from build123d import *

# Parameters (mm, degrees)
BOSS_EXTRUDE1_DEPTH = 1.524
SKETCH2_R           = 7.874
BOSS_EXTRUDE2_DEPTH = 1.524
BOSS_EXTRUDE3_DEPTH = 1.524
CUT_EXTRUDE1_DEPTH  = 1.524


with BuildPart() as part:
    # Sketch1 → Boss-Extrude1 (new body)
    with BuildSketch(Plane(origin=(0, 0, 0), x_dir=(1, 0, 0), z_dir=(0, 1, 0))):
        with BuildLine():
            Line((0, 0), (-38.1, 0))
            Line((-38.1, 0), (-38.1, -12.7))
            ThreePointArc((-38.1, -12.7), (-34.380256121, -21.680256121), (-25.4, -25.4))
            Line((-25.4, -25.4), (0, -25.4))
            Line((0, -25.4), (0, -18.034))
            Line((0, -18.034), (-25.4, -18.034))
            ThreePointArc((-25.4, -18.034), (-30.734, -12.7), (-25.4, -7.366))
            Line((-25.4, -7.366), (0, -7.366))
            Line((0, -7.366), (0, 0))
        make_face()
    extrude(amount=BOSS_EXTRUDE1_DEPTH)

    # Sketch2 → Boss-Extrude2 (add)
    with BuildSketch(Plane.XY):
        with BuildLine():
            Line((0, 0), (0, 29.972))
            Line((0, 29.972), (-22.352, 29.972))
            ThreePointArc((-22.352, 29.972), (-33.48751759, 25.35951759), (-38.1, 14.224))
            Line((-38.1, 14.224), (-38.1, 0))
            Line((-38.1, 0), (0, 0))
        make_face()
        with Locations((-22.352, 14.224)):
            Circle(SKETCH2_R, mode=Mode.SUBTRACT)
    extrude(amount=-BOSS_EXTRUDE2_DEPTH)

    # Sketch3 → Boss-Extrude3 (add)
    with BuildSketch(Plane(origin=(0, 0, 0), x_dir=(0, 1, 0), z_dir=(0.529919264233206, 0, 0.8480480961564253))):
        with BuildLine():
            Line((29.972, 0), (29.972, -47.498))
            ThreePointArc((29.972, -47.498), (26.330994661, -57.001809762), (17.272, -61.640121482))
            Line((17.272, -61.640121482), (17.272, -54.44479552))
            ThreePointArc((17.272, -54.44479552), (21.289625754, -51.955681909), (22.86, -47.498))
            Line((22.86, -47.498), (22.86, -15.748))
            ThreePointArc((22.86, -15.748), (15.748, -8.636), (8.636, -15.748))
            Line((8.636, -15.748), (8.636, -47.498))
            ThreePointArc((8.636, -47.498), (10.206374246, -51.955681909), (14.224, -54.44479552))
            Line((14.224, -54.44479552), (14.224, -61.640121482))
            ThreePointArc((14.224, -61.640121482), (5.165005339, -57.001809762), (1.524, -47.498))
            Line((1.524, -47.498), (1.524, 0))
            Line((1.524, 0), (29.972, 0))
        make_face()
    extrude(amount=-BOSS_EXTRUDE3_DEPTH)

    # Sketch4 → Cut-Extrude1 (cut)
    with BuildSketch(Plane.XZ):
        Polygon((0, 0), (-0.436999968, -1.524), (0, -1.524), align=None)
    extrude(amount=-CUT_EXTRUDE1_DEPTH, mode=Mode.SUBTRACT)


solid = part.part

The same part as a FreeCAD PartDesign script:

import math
import FreeCAD as App
import Part
import Sketcher
Q = App.Units.Quantity


def add_polygon(sketch, points):
    """Adds a closed chain of lines whose ends are joined by coincident constraints."""
    first, n = sketch.GeometryCount, len(points)
    for a, b in zip(points, points[1:] + points[:1]):
        sketch.addGeometry(Part.LineSegment(App.Vector(*a, 0), App.Vector(*b, 0)), False)
    for i in range(n):
        sketch.addConstraint(Sketcher.Constraint("Coincident", first + i, 2, first + (i + 1) % n, 1))

doc = App.newDocument("Part")
body = doc.addObject("PartDesign::Body", "Body")

# Sketch on XZ plane
sketch1 = body.newObject("Sketcher::SketchObject", "Sketch")
sketch1.AttachmentSupport = (doc.getObject("XZ_Plane"), [""])
sketch1.MapMode = "FlatFace"
sketch1.addGeometry(Part.LineSegment(App.Vector(0, 0, 0), App.Vector(-38, 0, 0)), False)
sketch1.addGeometry(Part.LineSegment(App.Vector(-38, 0, 0), App.Vector(-38, 13, 0)), False)
sketch1.addGeometry(Part.ArcOfCircle(Part.Circle(App.Vector(-25, 13, 0), App.Vector(0, 0, 1), 13), math.radians(90), math.radians(180)), False)
sketch1.addGeometry(Part.LineSegment(App.Vector(-25, 25, 0), App.Vector(0, 25, 0)), False)
sketch1.addGeometry(Part.LineSegment(App.Vector(0, 25, 0), App.Vector(0, 18, 0)), False)
sketch1.addGeometry(Part.LineSegment(App.Vector(0, 18, 0), App.Vector(-25, 18, 0)), False)
sketch1.addGeometry(Part.ArcOfCircle(Part.Circle(App.Vector(-25, 13, 0), App.Vector(0, 0, 1), 5), math.radians(90), math.radians(270)), False)
sketch1.addGeometry(Part.LineSegment(App.Vector(-25, 7, 0), App.Vector(0, 7, 0)), False)
sketch1.addGeometry(Part.LineSegment(App.Vector(0, 7, 0), App.Vector(0, 0, 0)), False)
sketch1.addConstraint(Sketcher.Constraint("Coincident", 0, 2, 1, 1))
sketch1.addConstraint(Sketcher.Constraint("Tangent", 1, 2, 2, 2))
sketch1.addConstraint(Sketcher.Constraint("Tangent", 2, 1, 3, 1))
sketch1.addConstraint(Sketcher.Constraint("Coincident", 3, 2, 4, 1))
sketch1.addConstraint(Sketcher.Constraint("Coincident", 4, 2, 5, 1))
sketch1.addConstraint(Sketcher.Constraint("Tangent", 5, 2, 6, 1))
sketch1.addConstraint(Sketcher.Constraint("Tangent", 6, 2, 7, 1))
sketch1.addConstraint(Sketcher.Constraint("Coincident", 7, 2, 8, 1))
sketch1.addConstraint(Sketcher.Constraint("Coincident", 8, 2, 0, 1))
sketch1.addConstraint(Sketcher.Constraint("Horizontal", 0))
sketch1.addConstraint(Sketcher.Constraint("Vertical", 1))
sketch1.addConstraint(Sketcher.Constraint("Horizontal", 3))
sketch1.addConstraint(Sketcher.Constraint("Vertical", 4))
sketch1.addConstraint(Sketcher.Constraint("Horizontal", 5))
sketch1.addConstraint(Sketcher.Constraint("Horizontal", 7))
sketch1.addConstraint(Sketcher.Constraint("Vertical", 8))
sketch1.addConstraint(Sketcher.Constraint("Coincident", 8, 2, -1, 1))
sketch1.addConstraint(Sketcher.Constraint("Coincident", 6, 3, 2, 3))
sketch1.addConstraint(Sketcher.Constraint("PointOnObject", 3, 2, -2))
sketch1.addConstraint(Sketcher.Constraint("Equal", 4, 8))
sketch1.addConstraint(Sketcher.Constraint("Radius", 2, Q("0.5 in")))
sketch1.addConstraint(Sketcher.Constraint("DistanceX", 3, 1, 3, 2, Q("1 in")))
sketch1.addConstraint(Sketcher.Constraint("Radius", 6, Q("0.21 in")))
pad1 = body.newObject("PartDesign::Pad", "Pad")
pad1.Profile = sketch1
pad1.Length = Q("0.06 in")
pad1.Reversed = True

# Sketch on XY plane
sketch2 = body.newObject("Sketcher::SketchObject", "Sketch001")
sketch2.AttachmentSupport = (doc.getObject("XY_Plane"), [""])
sketch2.MapMode = "FlatFace"
sketch2.addGeometry(Part.LineSegment(App.Vector(0, 0, 0), App.Vector(0, 30, 0)), False)
sketch2.addGeometry(Part.LineSegment(App.Vector(0, 30, 0), App.Vector(-22, 30, 0)), False)
sketch2.addGeometry(Part.ArcOfCircle(Part.Circle(App.Vector(-22, 14, 0), App.Vector(0, 0, 1), 16), math.radians(90), math.radians(180)), False)
sketch2.addGeometry(Part.LineSegment(App.Vector(-38, 14, 0), App.Vector(-38, 0, 0)), False)
sketch2.addGeometry(Part.LineSegment(App.Vector(-38, 0, 0), App.Vector(0, 0, 0)), False)
sketch2.addGeometry(Part.Circle(App.Vector(-22, 14, 0), App.Vector(0, 0, 1), 8), False)
sketch2.addConstraint(Sketcher.Constraint("Coincident", 0, 2, 1, 1))
sketch2.addConstraint(Sketcher.Constraint("Tangent", 1, 2, 2, 1))
sketch2.addConstraint(Sketcher.Constraint("Tangent", 2, 2, 3, 1))
sketch2.addConstraint(Sketcher.Constraint("Coincident", 3, 2, 4, 1))
sketch2.addConstraint(Sketcher.Constraint("Coincident", 4, 2, 0, 1))
sketch2.addConstraint(Sketcher.Constraint("Vertical", 0))
sketch2.addConstraint(Sketcher.Constraint("Horizontal", 1))
sketch2.addConstraint(Sketcher.Constraint("Vertical", 3))
sketch2.addConstraint(Sketcher.Constraint("Horizontal", 4))
sketch2.addConstraint(Sketcher.Constraint("Coincident", 4, 2, -1, 1))
sketch2.addConstraint(Sketcher.Constraint("Coincident", 5, 3, 2, 3))
sketch2.addConstraint(Sketcher.Constraint("Diameter", 5, Q("0.62 in")))
sketch2.addConstraint(Sketcher.Constraint("Radius", 2, Q("0.62 in")))
sketch2.addConstraint(Sketcher.Constraint("DistanceX", 4, 1, 4, 2, Q("1.5 in")))
sketch2.addConstraint(Sketcher.Constraint("DistanceY", 0, 1, 0, 2, Q("1.18 in")))
pad2 = body.newObject("PartDesign::Pad", "Pad001")
pad2.Profile = sketch2
pad2.Length = Q("0.06 in")
pad2.Reversed = True

# Sketch on an angled plane
sketch3 = body.newObject("Sketcher::SketchObject", "Sketch002")
sketch3.Placement = App.Placement(App.Vector(0, 0, 0), App.Rotation(App.Vector(0, 1, 0), App.Vector(-0.848048096, 0, 0.529919264), App.Vector(0.529919264, 0, 0.848048096), "ZXY"))
sketch3.addGeometry(Part.LineSegment(App.Vector(30, -47, 0), App.Vector(30, 0, 0)), False)
sketch3.addGeometry(Part.LineSegment(App.Vector(30, 0, 0), App.Vector(2, 0, 0)), False)
sketch3.addGeometry(Part.LineSegment(App.Vector(2, 0, 0), App.Vector(2, -47, 0)), False)
sketch3.addGeometry(Part.ArcOfCircle(Part.Circle(App.Vector(16, -47, 0), App.Vector(0, 0, 1), 14), math.radians(-180), math.radians(-96)), False)
sketch3.addGeometry(Part.LineSegment(App.Vector(14, -62, 0), App.Vector(14, -54, 0)), False)
sketch3.addGeometry(Part.ArcOfCircle(Part.Circle(App.Vector(16, -47, 0), App.Vector(0, 0, 1), 7), math.radians(180), math.radians(258)), False)
sketch3.addGeometry(Part.LineSegment(App.Vector(9, -47, 0), App.Vector(9, -16, 0)), False)
sketch3.addGeometry(Part.ArcOfCircle(Part.Circle(App.Vector(16, -16, 0), App.Vector(0, 0, 1), 7), math.radians(0), math.radians(180)), False)
sketch3.addGeometry(Part.LineSegment(App.Vector(23, -16, 0), App.Vector(23, -47, 0)), False)
sketch3.addGeometry(Part.ArcOfCircle(Part.Circle(App.Vector(16, -47, 0), App.Vector(0, 0, 1), 7), math.radians(-78), math.radians(0)), False)
sketch3.addGeometry(Part.LineSegment(App.Vector(17, -54, 0), App.Vector(17, -62, 0)), False)
sketch3.addGeometry(Part.ArcOfCircle(Part.Circle(App.Vector(16, -47, 0), App.Vector(0, 0, 1), 14), math.radians(-84), math.radians(0)), False)
sketch3.addConstraint(Sketcher.Constraint("Coincident", 0, 2, 1, 1))
sketch3.addConstraint(Sketcher.Constraint("Coincident", 1, 2, 2, 1))
sketch3.addConstraint(Sketcher.Constraint("Tangent", 2, 2, 3, 1))
sketch3.addConstraint(Sketcher.Constraint("Coincident", 3, 2, 4, 1))
sketch3.addConstraint(Sketcher.Constraint("Coincident", 4, 2, 5, 2))
sketch3.addConstraint(Sketcher.Constraint("Tangent", 5, 1, 6, 1))
sketch3.addConstraint(Sketcher.Constraint("Tangent", 6, 2, 7, 2))
sketch3.addConstraint(Sketcher.Constraint("Tangent", 7, 1, 8, 1))
sketch3.addConstraint(Sketcher.Constraint("Tangent", 8, 2, 9, 2))
sketch3.addConstraint(Sketcher.Constraint("Coincident", 9, 1, 10, 1))
sketch3.addConstraint(Sketcher.Constraint("Coincident", 10, 2, 11, 1))
sketch3.addConstraint(Sketcher.Constraint("Tangent", 11, 2, 0, 1))
sketch3.addConstraint(Sketcher.Constraint("Vertical", 0))
sketch3.addConstraint(Sketcher.Constraint("Horizontal", 1))
sketch3.addConstraint(Sketcher.Constraint("Vertical", 2))
sketch3.addConstraint(Sketcher.Constraint("Vertical", 4))
sketch3.addConstraint(Sketcher.Constraint("Vertical", 6))
sketch3.addConstraint(Sketcher.Constraint("Vertical", 8))
sketch3.addConstraint(Sketcher.Constraint("Vertical", 10))
sketch3.addConstraint(Sketcher.Constraint("Coincident", 5, 3, 3, 3))
sketch3.addConstraint(Sketcher.Constraint("Coincident", 9, 3, 3, 3))
sketch3.addConstraint(Sketcher.Constraint("Coincident", 11, 3, 3, 3))
sketch3.addConstraint(Sketcher.Constraint("Equal", 5, 7))
sketch3.addConstraint(Sketcher.Constraint("Equal", 3, 11))
sketch3.addConstraint(Sketcher.Constraint("PointOnObject", 0, 2, -1))
sketch3.addConstraint(Sketcher.Constraint("Horizontal", 4, 2, 9, 1))
sketch3.addConstraint(Sketcher.Constraint("Radius", 3, Q("0.56 in")))
sketch3.addConstraint(Sketcher.Constraint("Radius", 5, Q("0.28 in")))
sketch3.addConstraint(Sketcher.Constraint("DistanceY", 0, 1, 0, 2, Q("1.87 in")))
sketch3.addConstraint(Sketcher.Constraint("DistanceY", 6, 1, 6, 2, Q("1.25 in")))
sketch3.addConstraint(Sketcher.Constraint("DistanceX", -1, 1, 7, 1, Q("0.9 in")))
sketch3.addConstraint(Sketcher.Constraint("DistanceX", 2, 2, 3, 2, Q("0.5 in")))
pad3 = body.newObject("PartDesign::Pad", "Pad002")
pad3.Profile = sketch3
pad3.Length = Q("0.06 in")
pad3.Reversed = True

# Sketch on XZ plane
sketch4 = body.newObject("Sketcher::SketchObject", "Sketch003")
sketch4.AttachmentSupport = (doc.getObject("XZ_Plane"), [""])
sketch4.MapMode = "FlatFace"
add_polygon(sketch4, [(0, 0), (-0.44, -1.52), (0, -1.52)])  # lines 0-2
sketch4.addConstraint(Sketcher.Constraint("Horizontal", 1))
sketch4.addConstraint(Sketcher.Constraint("Vertical", 2))
sketch4.addConstraint(Sketcher.Constraint("Coincident", 2, 2, -1, 1))
sketch4.addConstraint(Sketcher.Constraint("Angle", 0, Q("-106 deg")))
sketch4.addConstraint(Sketcher.Constraint("DistanceY", 2, 1, 2, 2, Q("0.06 in")))
pocket1 = body.newObject("PartDesign::Pocket", "Pocket")
pocket1.Profile = sketch4
pocket1.Length = Q("0.06 in")

doc.recompute()
